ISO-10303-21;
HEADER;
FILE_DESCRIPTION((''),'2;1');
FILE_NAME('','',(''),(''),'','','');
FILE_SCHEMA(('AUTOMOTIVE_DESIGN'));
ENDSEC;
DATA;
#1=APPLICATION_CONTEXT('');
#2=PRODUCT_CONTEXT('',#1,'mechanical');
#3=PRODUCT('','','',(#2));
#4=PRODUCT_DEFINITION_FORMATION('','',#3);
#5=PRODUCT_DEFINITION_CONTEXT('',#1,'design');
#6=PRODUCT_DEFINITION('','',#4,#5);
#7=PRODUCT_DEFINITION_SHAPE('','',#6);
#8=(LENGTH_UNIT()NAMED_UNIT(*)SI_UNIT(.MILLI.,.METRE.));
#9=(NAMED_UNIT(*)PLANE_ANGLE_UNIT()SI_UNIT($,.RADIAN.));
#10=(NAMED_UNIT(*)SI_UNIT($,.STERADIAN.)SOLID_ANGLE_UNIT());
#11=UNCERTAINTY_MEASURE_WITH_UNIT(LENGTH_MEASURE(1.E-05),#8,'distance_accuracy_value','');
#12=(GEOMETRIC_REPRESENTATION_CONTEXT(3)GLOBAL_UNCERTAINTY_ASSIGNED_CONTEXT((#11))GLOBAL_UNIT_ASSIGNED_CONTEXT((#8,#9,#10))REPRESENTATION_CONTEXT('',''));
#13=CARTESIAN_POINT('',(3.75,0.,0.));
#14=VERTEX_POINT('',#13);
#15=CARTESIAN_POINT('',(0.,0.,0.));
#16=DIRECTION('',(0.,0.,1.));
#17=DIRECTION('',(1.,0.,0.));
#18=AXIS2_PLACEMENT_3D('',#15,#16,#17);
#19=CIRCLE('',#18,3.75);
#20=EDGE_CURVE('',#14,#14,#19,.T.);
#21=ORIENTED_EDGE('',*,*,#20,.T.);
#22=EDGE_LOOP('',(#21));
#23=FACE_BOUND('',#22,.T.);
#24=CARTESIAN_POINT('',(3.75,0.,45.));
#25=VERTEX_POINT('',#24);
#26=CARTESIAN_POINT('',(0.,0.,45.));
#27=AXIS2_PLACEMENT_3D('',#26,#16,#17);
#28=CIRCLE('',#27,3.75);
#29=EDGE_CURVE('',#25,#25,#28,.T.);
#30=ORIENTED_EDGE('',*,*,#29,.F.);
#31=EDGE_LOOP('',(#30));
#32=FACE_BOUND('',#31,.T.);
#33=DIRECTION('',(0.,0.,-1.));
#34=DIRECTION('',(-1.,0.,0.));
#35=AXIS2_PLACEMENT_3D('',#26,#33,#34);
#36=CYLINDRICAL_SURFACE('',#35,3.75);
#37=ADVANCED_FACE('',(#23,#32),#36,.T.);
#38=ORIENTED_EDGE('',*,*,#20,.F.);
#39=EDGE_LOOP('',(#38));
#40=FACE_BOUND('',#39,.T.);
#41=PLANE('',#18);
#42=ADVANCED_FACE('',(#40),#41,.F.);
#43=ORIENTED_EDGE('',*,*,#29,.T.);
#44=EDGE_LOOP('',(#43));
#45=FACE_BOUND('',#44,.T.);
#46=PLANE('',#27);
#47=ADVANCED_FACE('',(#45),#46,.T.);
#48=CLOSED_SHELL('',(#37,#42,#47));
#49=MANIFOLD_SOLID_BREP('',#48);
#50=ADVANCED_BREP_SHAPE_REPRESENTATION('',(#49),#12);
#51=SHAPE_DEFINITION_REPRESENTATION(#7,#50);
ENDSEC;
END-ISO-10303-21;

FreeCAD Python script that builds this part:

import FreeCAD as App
import Part
import Sketcher

V = App.Vector

doc = App.newDocument("Part")
params = doc.addObject("Spreadsheet::Sheet", "Params")
for row, (alias, value) in enumerate([
    ("sketch1_diameter", "7.5 mm"),
    ("pad1_length", "45 mm"),
], start=1):
    params.set(f"A{row}", alias)
    params.set(f"B{row}", "=" + value)
    params.setAlias(f"B{row}", alias)

body = doc.addObject("PartDesign::Body", "Body")

sketch1 = body.newObject("Sketcher::SketchObject", "Sketch")
sketch1.AttachmentSupport = (doc.getObject("XY_Plane"), [""])
sketch1.MapMode = "FlatFace"
sketch1.addGeometry(Part.Circle(V(0, 0, 0), V(0, 0, 1), 3.8), False)
sketch1.addConstraint([
    Sketcher.Constraint("Coincident", 0, 3, -1, 1),
    Sketcher.Constraint("Diameter", 0, 7.5),
])
sketch1.setExpression("Constraints[1]", "Params.sketch1_diameter")
pad1 = body.newObject("PartDesign::Pad", "Pad")
pad1.Profile = sketch1
pad1.setExpression("Length", "Params.pad1_length")

doc.recompute()
